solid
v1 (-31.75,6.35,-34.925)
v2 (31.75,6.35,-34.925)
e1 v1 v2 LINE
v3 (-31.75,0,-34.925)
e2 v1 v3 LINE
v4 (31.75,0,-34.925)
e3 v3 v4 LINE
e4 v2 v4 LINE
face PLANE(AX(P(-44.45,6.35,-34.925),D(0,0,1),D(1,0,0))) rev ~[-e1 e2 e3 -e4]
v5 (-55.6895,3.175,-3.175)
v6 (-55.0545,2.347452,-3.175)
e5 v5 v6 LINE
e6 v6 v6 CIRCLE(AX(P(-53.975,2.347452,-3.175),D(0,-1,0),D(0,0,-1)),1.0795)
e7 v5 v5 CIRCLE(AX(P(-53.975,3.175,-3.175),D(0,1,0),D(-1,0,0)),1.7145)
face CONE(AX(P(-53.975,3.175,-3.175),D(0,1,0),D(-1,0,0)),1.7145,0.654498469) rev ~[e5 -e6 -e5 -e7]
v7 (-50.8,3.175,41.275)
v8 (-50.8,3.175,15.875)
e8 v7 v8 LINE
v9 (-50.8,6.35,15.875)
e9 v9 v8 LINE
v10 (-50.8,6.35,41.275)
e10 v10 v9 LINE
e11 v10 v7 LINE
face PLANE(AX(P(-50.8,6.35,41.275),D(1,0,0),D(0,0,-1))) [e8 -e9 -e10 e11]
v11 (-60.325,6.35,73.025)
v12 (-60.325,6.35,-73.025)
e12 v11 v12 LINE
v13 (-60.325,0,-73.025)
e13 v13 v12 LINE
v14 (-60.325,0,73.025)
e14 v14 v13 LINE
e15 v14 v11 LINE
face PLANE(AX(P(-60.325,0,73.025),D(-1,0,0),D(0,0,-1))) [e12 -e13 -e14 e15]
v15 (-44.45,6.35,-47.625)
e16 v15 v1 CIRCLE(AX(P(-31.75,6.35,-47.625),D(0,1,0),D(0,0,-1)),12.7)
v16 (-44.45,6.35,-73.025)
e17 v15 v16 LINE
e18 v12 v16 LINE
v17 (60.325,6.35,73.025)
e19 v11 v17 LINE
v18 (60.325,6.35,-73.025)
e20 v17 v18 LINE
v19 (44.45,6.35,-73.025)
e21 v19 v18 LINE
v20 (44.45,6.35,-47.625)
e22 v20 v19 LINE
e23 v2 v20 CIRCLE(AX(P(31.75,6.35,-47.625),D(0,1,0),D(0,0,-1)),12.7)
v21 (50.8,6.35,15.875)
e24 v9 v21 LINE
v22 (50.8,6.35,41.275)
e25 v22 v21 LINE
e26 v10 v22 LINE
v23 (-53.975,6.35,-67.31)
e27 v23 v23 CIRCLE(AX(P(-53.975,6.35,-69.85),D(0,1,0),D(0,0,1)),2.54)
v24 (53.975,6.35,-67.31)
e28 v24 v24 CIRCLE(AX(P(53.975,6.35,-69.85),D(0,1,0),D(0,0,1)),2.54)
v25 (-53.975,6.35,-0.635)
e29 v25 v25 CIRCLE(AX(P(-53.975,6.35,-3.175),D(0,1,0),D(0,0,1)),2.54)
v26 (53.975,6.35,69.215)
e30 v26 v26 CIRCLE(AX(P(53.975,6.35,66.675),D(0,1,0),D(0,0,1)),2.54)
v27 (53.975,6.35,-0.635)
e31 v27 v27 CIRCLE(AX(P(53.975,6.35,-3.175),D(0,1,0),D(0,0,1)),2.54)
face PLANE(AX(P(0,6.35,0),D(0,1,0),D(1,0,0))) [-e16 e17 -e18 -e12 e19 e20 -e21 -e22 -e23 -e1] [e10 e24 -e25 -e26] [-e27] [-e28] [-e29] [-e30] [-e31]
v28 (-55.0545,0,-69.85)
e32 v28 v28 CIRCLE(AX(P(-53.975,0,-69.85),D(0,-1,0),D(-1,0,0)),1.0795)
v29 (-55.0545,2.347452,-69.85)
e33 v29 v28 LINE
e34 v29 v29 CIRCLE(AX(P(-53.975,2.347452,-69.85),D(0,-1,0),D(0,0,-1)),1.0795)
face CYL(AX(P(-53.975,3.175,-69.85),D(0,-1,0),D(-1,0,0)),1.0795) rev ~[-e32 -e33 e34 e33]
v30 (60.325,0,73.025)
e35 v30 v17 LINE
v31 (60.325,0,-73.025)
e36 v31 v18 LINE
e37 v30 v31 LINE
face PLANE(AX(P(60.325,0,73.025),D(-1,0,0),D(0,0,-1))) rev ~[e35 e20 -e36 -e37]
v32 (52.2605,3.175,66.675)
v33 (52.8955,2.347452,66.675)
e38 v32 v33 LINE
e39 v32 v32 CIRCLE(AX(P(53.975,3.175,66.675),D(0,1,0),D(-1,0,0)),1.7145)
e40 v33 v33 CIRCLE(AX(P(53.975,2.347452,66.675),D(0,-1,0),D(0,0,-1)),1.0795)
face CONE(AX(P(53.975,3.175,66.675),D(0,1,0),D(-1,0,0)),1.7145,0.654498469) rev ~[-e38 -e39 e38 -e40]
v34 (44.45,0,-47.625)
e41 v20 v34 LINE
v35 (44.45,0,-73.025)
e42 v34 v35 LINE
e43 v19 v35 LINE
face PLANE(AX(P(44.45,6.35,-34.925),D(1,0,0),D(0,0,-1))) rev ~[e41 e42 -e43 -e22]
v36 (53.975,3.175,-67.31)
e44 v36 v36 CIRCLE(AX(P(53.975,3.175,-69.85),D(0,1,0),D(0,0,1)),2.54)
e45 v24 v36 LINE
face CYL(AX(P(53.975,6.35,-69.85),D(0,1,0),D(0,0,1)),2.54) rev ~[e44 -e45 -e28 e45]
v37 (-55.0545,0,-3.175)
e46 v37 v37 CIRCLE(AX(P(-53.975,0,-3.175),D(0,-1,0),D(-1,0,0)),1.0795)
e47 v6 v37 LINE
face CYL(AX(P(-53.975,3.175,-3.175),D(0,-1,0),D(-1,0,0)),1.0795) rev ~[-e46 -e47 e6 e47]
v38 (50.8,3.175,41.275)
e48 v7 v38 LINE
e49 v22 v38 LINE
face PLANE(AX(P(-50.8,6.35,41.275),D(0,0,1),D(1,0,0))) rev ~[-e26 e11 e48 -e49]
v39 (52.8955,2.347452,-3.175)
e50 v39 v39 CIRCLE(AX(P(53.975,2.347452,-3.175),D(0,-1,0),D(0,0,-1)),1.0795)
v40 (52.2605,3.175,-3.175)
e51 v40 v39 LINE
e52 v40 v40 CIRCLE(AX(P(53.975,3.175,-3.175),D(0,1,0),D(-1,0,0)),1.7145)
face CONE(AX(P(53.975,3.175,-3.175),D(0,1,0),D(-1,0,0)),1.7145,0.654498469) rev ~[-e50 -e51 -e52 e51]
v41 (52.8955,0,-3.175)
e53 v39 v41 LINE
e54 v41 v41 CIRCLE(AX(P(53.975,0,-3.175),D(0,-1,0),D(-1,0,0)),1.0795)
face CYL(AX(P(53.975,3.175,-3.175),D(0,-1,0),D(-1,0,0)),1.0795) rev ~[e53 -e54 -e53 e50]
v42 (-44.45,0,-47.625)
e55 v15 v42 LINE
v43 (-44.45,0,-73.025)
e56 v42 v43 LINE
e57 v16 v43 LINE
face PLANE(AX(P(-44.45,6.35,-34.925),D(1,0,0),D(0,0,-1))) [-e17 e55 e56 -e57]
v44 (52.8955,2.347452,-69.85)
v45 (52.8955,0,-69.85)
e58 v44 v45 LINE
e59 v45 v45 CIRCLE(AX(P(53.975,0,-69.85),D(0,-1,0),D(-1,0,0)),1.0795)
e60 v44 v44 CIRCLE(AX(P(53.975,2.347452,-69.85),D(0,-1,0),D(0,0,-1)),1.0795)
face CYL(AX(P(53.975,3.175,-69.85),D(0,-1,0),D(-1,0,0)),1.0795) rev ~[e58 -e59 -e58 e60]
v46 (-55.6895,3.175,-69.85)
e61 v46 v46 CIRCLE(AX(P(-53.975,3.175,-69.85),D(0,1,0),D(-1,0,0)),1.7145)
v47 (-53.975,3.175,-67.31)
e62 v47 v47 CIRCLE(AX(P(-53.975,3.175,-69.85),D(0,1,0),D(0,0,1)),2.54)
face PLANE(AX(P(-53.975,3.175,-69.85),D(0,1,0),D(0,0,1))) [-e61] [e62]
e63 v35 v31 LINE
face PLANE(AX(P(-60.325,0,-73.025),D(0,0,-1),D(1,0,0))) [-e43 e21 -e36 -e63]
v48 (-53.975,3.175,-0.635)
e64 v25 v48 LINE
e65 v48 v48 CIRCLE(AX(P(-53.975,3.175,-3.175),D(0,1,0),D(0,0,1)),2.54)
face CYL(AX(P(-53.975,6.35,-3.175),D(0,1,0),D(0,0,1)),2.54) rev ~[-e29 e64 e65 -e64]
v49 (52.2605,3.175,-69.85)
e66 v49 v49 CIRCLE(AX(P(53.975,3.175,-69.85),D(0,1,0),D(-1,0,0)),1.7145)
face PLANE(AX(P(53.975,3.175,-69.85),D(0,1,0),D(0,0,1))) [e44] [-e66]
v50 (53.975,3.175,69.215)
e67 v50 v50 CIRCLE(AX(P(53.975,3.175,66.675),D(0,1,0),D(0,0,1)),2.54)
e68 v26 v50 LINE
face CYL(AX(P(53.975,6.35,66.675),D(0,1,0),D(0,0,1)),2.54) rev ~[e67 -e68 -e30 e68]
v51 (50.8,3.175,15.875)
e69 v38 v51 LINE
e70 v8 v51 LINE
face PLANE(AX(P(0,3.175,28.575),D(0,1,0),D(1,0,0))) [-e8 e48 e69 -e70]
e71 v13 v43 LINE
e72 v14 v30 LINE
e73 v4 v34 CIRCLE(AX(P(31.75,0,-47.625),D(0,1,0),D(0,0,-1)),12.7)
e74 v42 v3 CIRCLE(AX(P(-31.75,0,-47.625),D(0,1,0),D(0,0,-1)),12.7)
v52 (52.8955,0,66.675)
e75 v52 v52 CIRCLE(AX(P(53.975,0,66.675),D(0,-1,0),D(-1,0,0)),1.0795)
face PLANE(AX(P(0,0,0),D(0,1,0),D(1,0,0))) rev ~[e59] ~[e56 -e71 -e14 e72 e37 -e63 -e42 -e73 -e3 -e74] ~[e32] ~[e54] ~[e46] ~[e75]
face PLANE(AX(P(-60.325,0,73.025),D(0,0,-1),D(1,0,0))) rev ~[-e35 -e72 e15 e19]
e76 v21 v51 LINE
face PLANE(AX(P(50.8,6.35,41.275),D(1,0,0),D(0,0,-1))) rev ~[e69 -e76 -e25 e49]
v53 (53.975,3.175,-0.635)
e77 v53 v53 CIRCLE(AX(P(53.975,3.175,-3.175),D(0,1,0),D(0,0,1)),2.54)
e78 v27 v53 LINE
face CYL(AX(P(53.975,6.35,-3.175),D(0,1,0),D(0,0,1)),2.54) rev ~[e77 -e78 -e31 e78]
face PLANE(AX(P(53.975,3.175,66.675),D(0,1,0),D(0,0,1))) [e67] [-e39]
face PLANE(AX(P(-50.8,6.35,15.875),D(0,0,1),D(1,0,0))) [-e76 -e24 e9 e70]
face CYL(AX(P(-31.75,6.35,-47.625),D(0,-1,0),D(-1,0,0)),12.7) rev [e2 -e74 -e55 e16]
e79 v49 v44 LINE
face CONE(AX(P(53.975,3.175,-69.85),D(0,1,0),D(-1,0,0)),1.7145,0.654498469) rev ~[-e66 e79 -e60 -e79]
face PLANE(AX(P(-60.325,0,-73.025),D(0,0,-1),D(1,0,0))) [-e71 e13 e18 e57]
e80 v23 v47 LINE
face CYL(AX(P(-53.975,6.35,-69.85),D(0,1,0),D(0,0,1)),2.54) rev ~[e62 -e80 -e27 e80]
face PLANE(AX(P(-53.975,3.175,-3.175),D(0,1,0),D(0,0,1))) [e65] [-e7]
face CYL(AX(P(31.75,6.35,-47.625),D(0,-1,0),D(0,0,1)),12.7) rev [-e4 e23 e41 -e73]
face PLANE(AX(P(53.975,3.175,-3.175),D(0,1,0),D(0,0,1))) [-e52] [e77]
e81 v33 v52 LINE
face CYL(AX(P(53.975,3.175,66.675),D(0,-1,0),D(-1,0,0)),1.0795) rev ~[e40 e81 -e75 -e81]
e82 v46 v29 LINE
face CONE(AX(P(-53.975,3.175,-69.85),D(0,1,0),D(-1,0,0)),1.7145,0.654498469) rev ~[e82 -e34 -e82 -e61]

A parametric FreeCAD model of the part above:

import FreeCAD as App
import Part
import Sketcher
from FreeCAD import Vector
Q = App.Units.Quantity


def edges_at(feature, points):
    """Names of the edges that pass closest to the given points."""
    edges = feature.Shape.Edges
    near = lambda p: min(range(len(edges)), key=lambda i: edges[i].distToShape(Part.Vertex(*p))[0])
    return sorted({f"Edge{near(p) + 1}" for p in points})


def add_polygon(sketch, points):
    """Adds a closed chain of lines whose ends are joined by coincident constraints."""
    first, n = sketch.GeometryCount, len(points)
    for a, b in zip(points, points[1:] + points[:1]):
        sketch.addGeometry(Part.LineSegment(App.Vector(*a, 0), App.Vector(*b, 0)), False)
    for i in range(n):
        sketch.addConstraint(Sketcher.Constraint("Coincident", first + i, 2, first + (i + 1) % n, 1))

doc = App.newDocument("Part")
body = doc.addObject("PartDesign::Body", "Body")

# Sketch on XZ plane
sketch1 = body.newObject("Sketcher::SketchObject", "Sketch")
sketch1.AttachmentSupport = (doc.getObject("XZ_Plane"), [""])
sketch1.MapMode = "FlatFace"
add_polygon(sketch1, [(-60, -73), (-60, 73), (60, 73), (60, -73)])  # lines 0-3
sketch1.addConstraint(Sketcher.Constraint("Vertical", 0))
sketch1.addConstraint(Sketcher.Constraint("Horizontal", 1))
sketch1.addConstraint(Sketcher.Constraint("Vertical", 2))
sketch1.addConstraint(Sketcher.Constraint("Horizontal", 3))
sketch1.addConstraint(Sketcher.Constraint("Symmetric", 0, 2, 2, 2, -1, 1))
sketch1.addConstraint(Sketcher.Constraint("DistanceX", 1, 1, 1, 2, Q("4.75 in")))
sketch1.addConstraint(Sketcher.Constraint("DistanceY", 0, 1, 0, 2, Q("5.75 in")))
pad1 = body.newObject("PartDesign::Pad", "Pad")
pad1.Profile = sketch1
pad1.Length = Q("0.25 in")
pad1.Reversed = True

# Sketch on XZ plane
sketch2 = body.newObject("Sketcher::SketchObject", "Sketch001")
sketch2.AttachmentSupport = (doc.getObject("XZ_Plane"), [""])
sketch2.MapMode = "FlatFace"
sketch2.AttachmentOffset = App.Placement(Vector(0, 0, -0.25 * 25.4), App.Rotation())
sketch2.addGeometry(Part.Circle(Vector(-54, -3.2, 0), Vector(0, 0, 1), 2.5), False)
sketch2.addGeometry(Part.Circle(Vector(54, -3.2, 0), Vector(0, 0, 1), 2.5), False)
sketch2.addGeometry(Part.Circle(Vector(54, 66.7, 0), Vector(0, 0, 1), 2.5), False)
sketch2.addGeometry(Part.Circle(Vector(-54, -69.8, 0), Vector(0, 0, 1), 2.5), False)
sketch2.addGeometry(Part.Circle(Vector(54, -69.8, 0), Vector(0, 0, 1), 2.5), False)
sketch2.addConstraint(Sketcher.Constraint("Equal", 0, 1))
sketch2.addConstraint(Sketcher.Constraint("Equal", 1, 2))
sketch2.addConstraint(Sketcher.Constraint("Equal", 2, 3))
sketch2.addConstraint(Sketcher.Constraint("Equal", 3, 4))
sketch2.addConstraint(Sketcher.Constraint("Symmetric", 0, 3, 1, 3, -2))
sketch2.addConstraint(Sketcher.Constraint("Symmetric", 3, 3, 4, 3, -2))
sketch2.addConstraint(Sketcher.Constraint("Vertical", 1, 3, 2, 3))
sketch2.addConstraint(Sketcher.Constraint("Vertical", 0, 3, 3, 3))
sketch2.addConstraint(Sketcher.Constraint("Diameter", 0, Q("0.2 in")))
sketch2.addConstraint(Sketcher.Constraint("DistanceY", 3, 3, -1, 1, Q("2.75 in")))
sketch2.addConstraint(Sketcher.Constraint("DistanceX", 0, 3, 1, 3, Q("4.25 in")))
sketch2.addConstraint(Sketcher.Constraint("DistanceY", 1, 3, 2, 3, Q("2.75 in")))
sketch2.addConstraint(Sketcher.Constraint("DistanceY", 0, 3, -1, 1, Q("0.125 in")))
pocket1 = body.newObject("PartDesign::Pocket", "Pocket")
pocket1.Profile = sketch2
pocket1.Length = Q("0.125 in")
pocket1.Reversed = True

# Sketch on XZ plane
sketch3 = body.newObject("Sketcher::SketchObject", "Sketch002")
sketch3.AttachmentSupport = (doc.getObject("XZ_Plane"), [""])
sketch3.MapMode = "FlatFace"
sketch3.AttachmentOffset = App.Placement(Vector(0, 0, -0.125 * 25.4), App.Rotation())
sketch3.addGeometry(Part.Circle(Vector(-54, -3.2, 0), Vector(0, 0, 1), 1.1), False)
sketch3.addGeometry(Part.Circle(Vector(54, -3.2, 0), Vector(0, 0, 1), 1.1), False)
sketch3.addGeometry(Part.Circle(Vector(54, 66.7, 0), Vector(0, 0, 1), 1.1), False)
sketch3.addGeometry(Part.Circle(Vector(-54, -69.8, 0), Vector(0, 0, 1), 1.1), False)
sketch3.addGeometry(Part.Circle(Vector(54, -69.8, 0), Vector(0, 0, 1), 1.1), False)
sketch3.addConstraint(Sketcher.Constraint("Equal", 0, 1))
sketch3.addConstraint(Sketcher.Constraint("Equal", 1, 2))
sketch3.addConstraint(Sketcher.Constraint("Equal", 2, 3))
sketch3.addConstraint(Sketcher.Constraint("Equal", 3, 4))
sketch3.addConstraint(Sketcher.Constraint("Symmetric", 0, 3, 1, 3, -2))
sketch3.addConstraint(Sketcher.Constraint("Symmetric", 3, 3, 4, 3, -2))
sketch3.addConstraint(Sketcher.Constraint("Vertical", 1, 3, 2, 3))
sketch3.addConstraint(Sketcher.Constraint("Vertical", 0, 3, 3, 3))
sketch3.addConstraint(Sketcher.Constraint("Diameter", 0, Q("0.085 in")))
sketch3.addConstraint(Sketcher.Constraint("DistanceY", 3, 3, -1, 1, Q("2.75 in")))
sketch3.addConstraint(Sketcher.Constraint("DistanceX", 0, 3, 1, 3, Q("4.25 in")))
sketch3.addConstraint(Sketcher.Constraint("DistanceY", 1, 3, 2, 3, Q("2.75 in")))
sketch3.addConstraint(Sketcher.Constraint("DistanceY", 0, 3, -1, 1, Q("0.125 in")))
doc.recompute()
hole = body.newObject("PartDesign::Hole", "Hole")
hole.Profile = sketch3
hole.ThreadType = "None"
hole.Diameter = Q("0.085 in")
hole.DepthType = "ThroughAll"
hole.HoleCutType = "Countersink"
hole.HoleCutDiameter = Q("0.135 in")
hole.HoleCutCountersinkAngle = 75
hole.Reversed = True

# Sketch on XZ plane
sketch4 = body.newObject("Sketcher::SketchObject", "Sketch003")
sketch4.AttachmentSupport = (doc.getObject("XZ_Plane"), [""])
sketch4.MapMode = "FlatFace"
sketch4.AttachmentOffset = App.Placement(Vector(0, 0, -0.25 * 25.4), App.Rotation())
add_polygon(sketch4, [(-44, -73), (-44, -35), (44, -35), (44, -73)])  # lines 0-3
sketch4.addConstraint(Sketcher.Constraint("Vertical", 0))
sketch4.addConstraint(Sketcher.Constraint("Horizontal", 1))
sketch4.addConstraint(Sketcher.Constraint("Vertical", 2))
sketch4.addConstraint(Sketcher.Constraint("Horizontal", 3))
sketch4.addConstraint(Sketcher.Constraint("DistanceX", 1, 1, 1, 2, Q("3.5 in")))
sketch4.addConstraint(Sketcher.Constraint("DistanceY", 0, 1, 0, 2, Q("1.5 in")))
sketch4.addConstraint(Sketcher.Constraint("DistanceX", 0, 2, -1, 1, Q("1.75 in")))
sketch4.addConstraint(Sketcher.Constraint("DistanceY", 0, 2, -1, 1, Q("1.375 in")))
pocket2 = body.newObject("PartDesign::Pocket", "Pocket001")
pocket2.Profile = sketch4
pocket2.Type = "ThroughAll"
pocket2.Reversed = True
doc.recompute()

fillet = body.newObject("PartDesign::Fillet", "Fillet")
fillet.Base = (pocket2, edges_at(pocket2, [(44.45, 3.175, -34.925), (-44.45, 3.175, -34.925)]))
fillet.Radius = Q("0.5 in")

# Sketch on XZ plane
sketch5 = body.newObject("Sketcher::SketchObject", "Sketch004")
sketch5.AttachmentSupport = (doc.getObject("XZ_Plane"), [""])
sketch5.MapMode = "FlatFace"
sketch5.AttachmentOffset = App.Placement(Vector(0, 0, -0.25 * 25.4), App.Rotation())
add_polygon(sketch5, [(-51, 16), (-51, 41), (51, 41), (51, 16)])  # lines 0-3
sketch5.addConstraint(Sketcher.Constraint("Vertical", 0))
sketch5.addConstraint(Sketcher.Constraint("Horizontal", 1))
sketch5.addConstraint(Sketcher.Constraint("Vertical", 2))
sketch5.addConstraint(Sketcher.Constraint("Horizontal", 3))
sketch5.addConstraint(Sketcher.Constraint("DistanceX", 1, 1, 1, 2, Q("4 in")))
sketch5.addConstraint(Sketcher.Constraint("DistanceY", 0, 1, 0, 2, Q("1 in")))
sketch5.addConstraint(Sketcher.Constraint("DistanceX", 0, 2, -1, 1, Q("2 in")))
sketch5.addConstraint(Sketcher.Constraint("DistanceY", -1, 1, 0, 2, Q("1.625 in")))
pocket3 = body.newObject("PartDesign::Pocket", "Pocket002")
pocket3.Profile = sketch5
pocket3.Length = Q("0.125 in")
pocket3.Reversed = True

doc.recompute()
